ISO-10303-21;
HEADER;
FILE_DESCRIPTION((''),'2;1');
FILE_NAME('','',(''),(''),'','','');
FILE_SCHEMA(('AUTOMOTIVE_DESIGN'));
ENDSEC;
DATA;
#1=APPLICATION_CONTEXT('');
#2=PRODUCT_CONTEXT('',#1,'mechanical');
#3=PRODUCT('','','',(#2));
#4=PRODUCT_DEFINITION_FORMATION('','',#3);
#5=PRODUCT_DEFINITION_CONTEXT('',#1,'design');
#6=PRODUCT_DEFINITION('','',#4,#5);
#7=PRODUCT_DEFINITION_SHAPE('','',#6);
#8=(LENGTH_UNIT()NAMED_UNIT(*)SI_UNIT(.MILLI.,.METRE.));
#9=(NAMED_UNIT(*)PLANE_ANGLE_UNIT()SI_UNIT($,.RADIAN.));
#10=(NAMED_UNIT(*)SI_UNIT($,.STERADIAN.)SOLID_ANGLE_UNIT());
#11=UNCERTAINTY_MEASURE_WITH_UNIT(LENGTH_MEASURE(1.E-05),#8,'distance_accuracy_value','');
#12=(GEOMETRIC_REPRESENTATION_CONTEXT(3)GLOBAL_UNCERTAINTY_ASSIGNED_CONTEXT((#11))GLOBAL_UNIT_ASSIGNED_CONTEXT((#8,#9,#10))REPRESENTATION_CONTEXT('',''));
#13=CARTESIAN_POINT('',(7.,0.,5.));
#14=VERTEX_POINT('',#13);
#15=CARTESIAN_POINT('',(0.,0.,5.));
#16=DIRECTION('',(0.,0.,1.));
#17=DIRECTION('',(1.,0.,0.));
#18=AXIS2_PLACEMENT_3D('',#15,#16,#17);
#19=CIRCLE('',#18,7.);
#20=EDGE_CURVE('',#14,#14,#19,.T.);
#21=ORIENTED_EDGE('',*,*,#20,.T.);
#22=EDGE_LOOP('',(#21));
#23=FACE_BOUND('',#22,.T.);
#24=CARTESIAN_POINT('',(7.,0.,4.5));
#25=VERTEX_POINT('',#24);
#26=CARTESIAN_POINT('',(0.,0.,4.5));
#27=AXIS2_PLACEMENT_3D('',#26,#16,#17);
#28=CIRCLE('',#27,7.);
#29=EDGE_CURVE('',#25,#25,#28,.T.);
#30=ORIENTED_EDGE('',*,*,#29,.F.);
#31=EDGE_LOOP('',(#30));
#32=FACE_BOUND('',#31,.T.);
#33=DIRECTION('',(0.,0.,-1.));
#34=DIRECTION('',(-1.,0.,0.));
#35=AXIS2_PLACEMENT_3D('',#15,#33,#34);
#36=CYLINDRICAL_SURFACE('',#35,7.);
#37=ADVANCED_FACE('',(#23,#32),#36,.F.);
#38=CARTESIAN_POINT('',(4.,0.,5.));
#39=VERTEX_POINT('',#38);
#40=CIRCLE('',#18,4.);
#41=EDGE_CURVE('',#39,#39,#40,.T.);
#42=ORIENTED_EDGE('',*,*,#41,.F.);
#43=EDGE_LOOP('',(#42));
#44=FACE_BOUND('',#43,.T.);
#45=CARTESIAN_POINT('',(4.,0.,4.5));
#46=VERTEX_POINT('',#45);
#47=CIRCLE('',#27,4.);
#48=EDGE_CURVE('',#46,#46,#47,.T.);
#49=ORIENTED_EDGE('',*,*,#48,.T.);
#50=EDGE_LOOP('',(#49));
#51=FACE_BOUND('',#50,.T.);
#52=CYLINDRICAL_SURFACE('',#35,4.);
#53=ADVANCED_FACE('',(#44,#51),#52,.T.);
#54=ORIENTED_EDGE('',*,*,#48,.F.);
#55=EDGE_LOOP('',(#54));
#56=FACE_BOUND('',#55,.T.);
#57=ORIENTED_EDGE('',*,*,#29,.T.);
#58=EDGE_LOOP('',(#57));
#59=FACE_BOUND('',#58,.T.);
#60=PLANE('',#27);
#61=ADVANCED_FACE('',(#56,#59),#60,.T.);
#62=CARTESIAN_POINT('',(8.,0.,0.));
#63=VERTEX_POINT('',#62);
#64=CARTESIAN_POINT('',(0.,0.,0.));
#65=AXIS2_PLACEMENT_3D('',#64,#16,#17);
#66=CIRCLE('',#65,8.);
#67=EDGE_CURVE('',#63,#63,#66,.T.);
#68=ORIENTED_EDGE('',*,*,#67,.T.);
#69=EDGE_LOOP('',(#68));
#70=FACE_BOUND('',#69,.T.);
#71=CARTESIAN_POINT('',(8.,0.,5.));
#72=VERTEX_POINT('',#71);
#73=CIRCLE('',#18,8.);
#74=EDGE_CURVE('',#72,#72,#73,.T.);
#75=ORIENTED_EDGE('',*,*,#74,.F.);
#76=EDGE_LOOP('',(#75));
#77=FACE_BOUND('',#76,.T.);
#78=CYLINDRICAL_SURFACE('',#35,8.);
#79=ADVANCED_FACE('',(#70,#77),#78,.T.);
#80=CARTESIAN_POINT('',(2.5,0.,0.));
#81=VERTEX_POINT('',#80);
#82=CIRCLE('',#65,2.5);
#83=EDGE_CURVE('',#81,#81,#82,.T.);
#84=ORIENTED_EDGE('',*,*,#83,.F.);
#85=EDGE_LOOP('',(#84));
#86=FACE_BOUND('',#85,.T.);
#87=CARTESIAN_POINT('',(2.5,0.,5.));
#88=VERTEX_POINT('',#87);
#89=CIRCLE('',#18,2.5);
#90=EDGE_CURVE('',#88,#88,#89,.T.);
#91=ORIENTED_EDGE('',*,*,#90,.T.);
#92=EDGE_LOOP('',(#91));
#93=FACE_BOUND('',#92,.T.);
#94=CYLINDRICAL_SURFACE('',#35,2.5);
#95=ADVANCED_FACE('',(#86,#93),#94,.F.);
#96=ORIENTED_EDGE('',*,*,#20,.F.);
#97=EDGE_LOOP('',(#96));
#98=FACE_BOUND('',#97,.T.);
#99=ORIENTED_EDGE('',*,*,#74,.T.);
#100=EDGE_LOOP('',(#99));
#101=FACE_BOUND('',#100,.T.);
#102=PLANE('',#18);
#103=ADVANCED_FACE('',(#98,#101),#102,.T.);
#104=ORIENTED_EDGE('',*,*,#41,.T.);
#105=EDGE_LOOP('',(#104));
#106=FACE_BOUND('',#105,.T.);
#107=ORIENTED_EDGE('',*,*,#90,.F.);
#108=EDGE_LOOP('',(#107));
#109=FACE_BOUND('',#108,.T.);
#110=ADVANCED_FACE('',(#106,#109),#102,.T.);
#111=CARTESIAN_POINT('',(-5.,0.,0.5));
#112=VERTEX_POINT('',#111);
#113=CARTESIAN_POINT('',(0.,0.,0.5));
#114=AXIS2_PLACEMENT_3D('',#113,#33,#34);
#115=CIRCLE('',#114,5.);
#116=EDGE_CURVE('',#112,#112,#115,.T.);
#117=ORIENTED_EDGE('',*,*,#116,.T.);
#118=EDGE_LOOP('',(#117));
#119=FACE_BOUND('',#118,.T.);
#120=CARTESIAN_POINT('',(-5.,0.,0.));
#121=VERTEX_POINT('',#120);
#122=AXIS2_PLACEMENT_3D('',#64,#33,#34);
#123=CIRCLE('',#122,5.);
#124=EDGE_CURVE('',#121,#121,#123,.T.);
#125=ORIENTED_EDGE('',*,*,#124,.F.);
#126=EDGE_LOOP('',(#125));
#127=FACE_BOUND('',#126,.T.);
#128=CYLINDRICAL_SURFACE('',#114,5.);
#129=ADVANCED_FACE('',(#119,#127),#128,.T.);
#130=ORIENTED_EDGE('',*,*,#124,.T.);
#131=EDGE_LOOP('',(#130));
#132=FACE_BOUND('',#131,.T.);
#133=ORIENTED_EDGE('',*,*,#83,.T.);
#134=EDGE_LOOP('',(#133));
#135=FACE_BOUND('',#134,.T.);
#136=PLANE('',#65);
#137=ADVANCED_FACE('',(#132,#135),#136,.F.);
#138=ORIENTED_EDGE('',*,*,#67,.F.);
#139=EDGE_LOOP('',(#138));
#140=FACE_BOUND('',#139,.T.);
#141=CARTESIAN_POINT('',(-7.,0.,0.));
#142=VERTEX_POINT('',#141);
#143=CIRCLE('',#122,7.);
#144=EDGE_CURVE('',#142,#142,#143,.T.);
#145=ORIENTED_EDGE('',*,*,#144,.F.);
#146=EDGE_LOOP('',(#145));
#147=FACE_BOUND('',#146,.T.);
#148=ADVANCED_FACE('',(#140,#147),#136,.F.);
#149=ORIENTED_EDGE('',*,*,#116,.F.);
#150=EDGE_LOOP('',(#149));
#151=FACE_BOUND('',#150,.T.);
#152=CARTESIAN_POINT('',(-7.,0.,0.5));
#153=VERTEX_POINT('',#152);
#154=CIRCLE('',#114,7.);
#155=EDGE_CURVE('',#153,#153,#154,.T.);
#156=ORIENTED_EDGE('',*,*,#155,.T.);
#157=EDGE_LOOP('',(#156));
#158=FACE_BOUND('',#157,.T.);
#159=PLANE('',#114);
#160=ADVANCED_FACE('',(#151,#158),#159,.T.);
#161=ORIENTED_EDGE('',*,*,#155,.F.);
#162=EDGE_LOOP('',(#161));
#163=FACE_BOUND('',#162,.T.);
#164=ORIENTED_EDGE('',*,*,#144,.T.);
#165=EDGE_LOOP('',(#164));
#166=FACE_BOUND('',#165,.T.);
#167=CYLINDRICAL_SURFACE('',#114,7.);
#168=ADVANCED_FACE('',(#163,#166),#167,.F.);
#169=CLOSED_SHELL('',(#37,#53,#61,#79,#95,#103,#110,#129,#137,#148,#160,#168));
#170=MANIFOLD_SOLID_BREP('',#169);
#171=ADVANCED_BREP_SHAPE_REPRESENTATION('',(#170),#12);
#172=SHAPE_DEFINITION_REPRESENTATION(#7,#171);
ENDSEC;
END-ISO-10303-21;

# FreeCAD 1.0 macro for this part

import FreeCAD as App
import Part
import Sketcher
Q = App.Units.Quantity

doc = App.newDocument("Part")
body = doc.addObject("PartDesign::Body", "Body")

sketch1 = body.newObject("Sketcher::SketchObject", "Sketch")
sketch1.AttachmentSupport = (doc.getObject("XY_Plane"), [""])
sketch1.MapMode = "FlatFace"
sketch1.addGeometry(Part.Circle(App.Vector(0, 0, 0), App.Vector(0, 0, 1), 8), False)
sketch1.addGeometry(Part.Circle(App.Vector(0, 0, 0), App.Vector(0, 0, 1), 7), False)
sketch1.addConstraint(Sketcher.Constraint("Coincident", 0, 3, -1, 1))
sketch1.addConstraint(Sketcher.Constraint("Coincident", 1, 3, -1, 1))
sketch1.addConstraint(Sketcher.Constraint("Diameter", 0, Q("16 mm")))
sketch1.addConstraint(Sketcher.Constraint("Diameter", 1, Q("14 mm")))
pad1 = body.newObject("PartDesign::Pad", "Pad")
pad1.Profile = sketch1
pad1.Length = 5

sketch2 = body.newObject("Sketcher::SketchObject", "Sketch001")
sketch2.AttachmentSupport = (doc.getObject("XY_Plane"), [""])
sketch2.MapMode = "FlatFace"
sketch2.addGeometry(Part.Circle(App.Vector(0, 0, 0), App.Vector(0, 0, 1), 7), False)
sketch2.addGeometry(Part.Circle(App.Vector(0, 0, 0), App.Vector(0, 0, 1), 4), False)
sketch2.addConstraint(Sketcher.Constraint("Coincident", 0, 3, -1, 1))
sketch2.addConstraint(Sketcher.Constraint("Coincident", 1, 3, -1, 1))
sketch2.addConstraint(Sketcher.Constraint("Diameter", 0, Q("14 mm")))
sketch2.addConstraint(Sketcher.Constraint("Diameter", 1, Q("8 mm")))
pad2 = body.newObject("PartDesign::Pad", "Pad001")
pad2.Profile = sketch2
pad2.Length = 4.5

sketch3 = body.newObject("Sketcher::SketchObject", "Sketch002")
sketch3.AttachmentSupport = (doc.getObject("XY_Plane"), [""])
sketch3.MapMode = "FlatFace"
sketch3.addGeometry(Part.Circle(App.Vector(0, 0, 0), App.Vector(0, 0, 1), 4), False)
sketch3.addGeometry(Part.Circle(App.Vector(0, 0, 0), App.Vector(0, 0, 1), 2.5), False)
sketch3.addConstraint(Sketcher.Constraint("Coincident", 0, 3, -1, 1))
sketch3.addConstraint(Sketcher.Constraint("Coincident", 1, 3, -1, 1))
sketch3.addConstraint(Sketcher.Constraint("Diameter", 0, Q("8 mm")))
sketch3.addConstraint(Sketcher.Constraint("Diameter", 1, Q("5 mm")))
pad3 = body.newObject("PartDesign::Pad", "Pad002")
pad3.Profile = sketch3
pad3.Length = 5

sketch4 = body.newObject("Sketcher::SketchObject", "Sketch003")
sketch4.AttachmentSupport = (doc.getObject("XY_Plane"), [""])
sketch4.MapMode = "FlatFace"
sketch4.addGeometry(Part.Circle(App.Vector(0, 0, 0), App.Vector(0, 0, 1), 7), False)
sketch4.addGeometry(Part.Circle(App.Vector(0, 0, 0), App.Vector(0, 0, 1), 5), False)
sketch4.addConstraint(Sketcher.Constraint("Coincident", 0, 3, -1, 1))
sketch4.addConstraint(Sketcher.Constraint("Coincident", 1, 3, -1, 1))
sketch4.addConstraint(Sketcher.Constraint("Diameter", 0, Q("14 mm")))
sketch4.addConstraint(Sketcher.Constraint("Diameter", 1, Q("10 mm")))
pocket1 = body.newObject("PartDesign::Pocket", "Pocket")
pocket1.Profile = sketch4
pocket1.Length = 0.5
pocket1.Reversed = True

doc.recompute()
